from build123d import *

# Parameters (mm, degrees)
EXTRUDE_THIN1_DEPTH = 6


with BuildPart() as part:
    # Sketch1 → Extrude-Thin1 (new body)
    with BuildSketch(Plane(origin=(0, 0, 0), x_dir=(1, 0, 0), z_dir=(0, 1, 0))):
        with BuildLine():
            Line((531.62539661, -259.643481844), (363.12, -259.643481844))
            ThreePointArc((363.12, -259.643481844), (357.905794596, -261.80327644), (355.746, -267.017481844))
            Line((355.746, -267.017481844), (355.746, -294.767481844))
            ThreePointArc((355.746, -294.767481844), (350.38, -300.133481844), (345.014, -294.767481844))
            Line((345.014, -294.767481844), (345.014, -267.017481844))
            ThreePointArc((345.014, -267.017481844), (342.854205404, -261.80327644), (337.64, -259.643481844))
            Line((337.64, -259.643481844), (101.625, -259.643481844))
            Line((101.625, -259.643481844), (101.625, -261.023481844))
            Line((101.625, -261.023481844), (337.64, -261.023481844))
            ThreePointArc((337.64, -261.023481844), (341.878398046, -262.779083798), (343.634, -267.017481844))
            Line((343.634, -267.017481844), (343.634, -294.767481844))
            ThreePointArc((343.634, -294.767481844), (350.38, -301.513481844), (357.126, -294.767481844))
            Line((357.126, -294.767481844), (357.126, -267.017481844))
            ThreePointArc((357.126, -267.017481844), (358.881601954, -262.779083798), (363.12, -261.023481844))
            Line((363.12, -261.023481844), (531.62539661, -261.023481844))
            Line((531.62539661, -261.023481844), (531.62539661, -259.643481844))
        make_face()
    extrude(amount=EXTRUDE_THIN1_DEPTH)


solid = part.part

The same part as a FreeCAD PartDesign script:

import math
import FreeCAD as App
import Part
import Sketcher
from FreeCAD import Vector

doc = App.newDocument("Part")
params = doc.addObject("Spreadsheet::Sheet", "Params")
for row, (alias, value) in enumerate([
    ("sketch1_height", "27.75 mm"),
    ("pad1_length", "6 mm"),
], start=1):
    params.set(f"A{row}", alias)
    params.set(f"B{row}", "=" + value)
    params.setAlias(f"B{row}", alias)

body = doc.addObject("PartDesign::Body", "Body")

# Sketch on XZ plane
sketch1 = body.newObject("Sketcher::SketchObject", "Sketch")
sketch1.AttachmentSupport = (doc.getObject("XZ_Plane"), [""])
sketch1.MapMode = "FlatFace"
sketch1.addGeometry(Part.LineSegment(Vector(531.625397, 259.643482, 0), Vector(363.12, 259.643482, 0)), False)
sketch1.addGeometry(Part.ArcOfCircle(Part.Circle(Vector(363.12, 267.017482, 0), Vector(0, 0, 1), 7.374), math.radians(-180), math.radians(-90)), False)
sketch1.addGeometry(Part.LineSegment(Vector(355.746, 267.017482, 0), Vector(355.746, 294.767482, 0)), False)
sketch1.addGeometry(Part.ArcOfCircle(Part.Circle(Vector(350.38, 294.767482, 0), Vector(0, 0, 1), 5.366), math.radians(0), math.radians(180)), False)
sketch1.addGeometry(Part.LineSegment(Vector(345.014, 294.767482, 0), Vector(345.014, 267.017482, 0)), False)
sketch1.addGeometry(Part.ArcOfCircle(Part.Circle(Vector(337.64, 267.017482, 0), Vector(0, 0, 1), 7.374), math.radians(-90), math.radians(0)), False)
sketch1.addGeometry(Part.LineSegment(Vector(337.64, 259.643482, 0), Vector(101.625, 259.643482, 0)), False)
sketch1.addGeometry(Part.LineSegment(Vector(101.625, 259.643482, 0), Vector(101.625, 261.023482, 0)), False)
sketch1.addGeometry(Part.LineSegment(Vector(101.625, 261.023482, 0), Vector(337.64, 261.023482, 0)), False)
sketch1.addGeometry(Part.ArcOfCircle(Part.Circle(Vector(337.64, 267.017482, 0), Vector(0, 0, 1), 5.994), math.radians(-90), math.radians(0)), False)
sketch1.addGeometry(Part.LineSegment(Vector(343.634, 267.017482, 0), Vector(343.634, 294.767482, 0)), False)
sketch1.addGeometry(Part.ArcOfCircle(Part.Circle(Vector(350.38, 294.767482, 0), Vector(0, 0, 1), 6.746), math.radians(0), math.radians(180)), False)
sketch1.addGeometry(Part.LineSegment(Vector(357.126, 294.767482, 0), Vector(357.126, 267.017482, 0)), False)
sketch1.addGeometry(Part.ArcOfCircle(Part.Circle(Vector(363.12, 267.017482, 0), Vector(0, 0, 1), 5.994), math.radians(-180), math.radians(-90)), False)
sketch1.addGeometry(Part.LineSegment(Vector(363.12, 261.023482, 0), Vector(531.625397, 261.023482, 0)), False)
sketch1.addGeometry(Part.LineSegment(Vector(531.625397, 261.023482, 0), Vector(531.625397, 259.643482, 0)), False)
sketch1.addConstraint(Sketcher.Constraint("Tangent", 0, 2, 1, 2))
sketch1.addConstraint(Sketcher.Constraint("Tangent", 1, 1, 2, 1))
sketch1.addConstraint(Sketcher.Constraint("Tangent", 2, 2, 3, 1))
sketch1.addConstraint(Sketcher.Constraint("Tangent", 3, 2, 4, 1))
sketch1.addConstraint(Sketcher.Constraint("Tangent", 4, 2, 5, 2))
sketch1.addConstraint(Sketcher.Constraint("Tangent", 5, 1, 6, 1))
sketch1.addConstraint(Sketcher.Constraint("Coincident", 6, 2, 7, 1))
sketch1.addConstraint(Sketcher.Constraint("Coincident", 7, 2, 8, 1))
sketch1.addConstraint(Sketcher.Constraint("Tangent", 8, 2, 9, 1))
sketch1.addConstraint(Sketcher.Constraint("Tangent", 9, 2, 10, 1))
sketch1.addConstraint(Sketcher.Constraint("Tangent", 10, 2, 11, 2))
sketch1.addConstraint(Sketcher.Constraint("Tangent", 11, 1, 12, 1))
sketch1.addConstraint(Sketcher.Constraint("Tangent", 12, 2, 13, 1))
sketch1.addConstraint(Sketcher.Constraint("Tangent", 13, 2, 14, 1))
sketch1.addConstraint(Sketcher.Constraint("Coincident", 14, 2, 15, 1))
sketch1.addConstraint(Sketcher.Constraint("Coincident", 15, 2, 0, 1))
sketch1.addConstraint(Sketcher.Constraint("Horizontal", 0))
sketch1.addConstraint(Sketcher.Constraint("Vertical", 2))
sketch1.addConstraint(Sketcher.Constraint("Vertical", 4))
sketch1.addConstraint(Sketcher.Constraint("Horizontal", 6))
sketch1.addConstraint(Sketcher.Constraint("Vertical", 7))
sketch1.addConstraint(Sketcher.Constraint("Horizontal", 8))
sketch1.addConstraint(Sketcher.Constraint("Vertical", 10))
sketch1.addConstraint(Sketcher.Constraint("Vertical", 12))
sketch1.addConstraint(Sketcher.Constraint("Horizontal", 14))
sketch1.addConstraint(Sketcher.Constraint("Vertical", 15))
sketch1.addConstraint(Sketcher.Constraint("Coincident", 9, 3, 5, 3))
sketch1.addConstraint(Sketcher.Constraint("Coincident", 11, 3, 3, 3))
sketch1.addConstraint(Sketcher.Constraint("Coincident", 13, 3, 1, 3))
sketch1.addConstraint(Sketcher.Constraint("Equal", 1, 5))
sketch1.addConstraint(Sketcher.Constraint("Horizontal", 1, 3, 5, 3))
sketch1.addConstraint(Sketcher.Constraint("Radius", 1, 7.374))
sketch1.addConstraint(Sketcher.Constraint("Radius", 3, 5.366))
sketch1.addConstraint(Sketcher.Constraint("Radius", 9, 5.994))
sketch1.addConstraint(Sketcher.Constraint("DistanceY", 2, 1, 2, 2, 27.75))
sketch1.addConstraint(Sketcher.Constraint("DistanceX", 6, 2, 6, 1, 236.015))
sketch1.addConstraint(Sketcher.Constraint("DistanceX", -1, 1, 1, 3, 363.12))
sketch1.addConstraint(Sketcher.Constraint("DistanceX", 0, 2, 0, 1, 168.505397))
sketch1.addConstraint(Sketcher.Constraint("DistanceY", -1, 1, 1, 3, 267.017482))
sketch1.setExpression("Constraints[34]", "Params.sketch1_height")
pad1 = body.newObject("PartDesign::Pad", "Pad")
pad1.Profile = sketch1
pad1.setExpression("Length", "Params.pad1_length")
pad1.Reversed = True

doc.recompute()
